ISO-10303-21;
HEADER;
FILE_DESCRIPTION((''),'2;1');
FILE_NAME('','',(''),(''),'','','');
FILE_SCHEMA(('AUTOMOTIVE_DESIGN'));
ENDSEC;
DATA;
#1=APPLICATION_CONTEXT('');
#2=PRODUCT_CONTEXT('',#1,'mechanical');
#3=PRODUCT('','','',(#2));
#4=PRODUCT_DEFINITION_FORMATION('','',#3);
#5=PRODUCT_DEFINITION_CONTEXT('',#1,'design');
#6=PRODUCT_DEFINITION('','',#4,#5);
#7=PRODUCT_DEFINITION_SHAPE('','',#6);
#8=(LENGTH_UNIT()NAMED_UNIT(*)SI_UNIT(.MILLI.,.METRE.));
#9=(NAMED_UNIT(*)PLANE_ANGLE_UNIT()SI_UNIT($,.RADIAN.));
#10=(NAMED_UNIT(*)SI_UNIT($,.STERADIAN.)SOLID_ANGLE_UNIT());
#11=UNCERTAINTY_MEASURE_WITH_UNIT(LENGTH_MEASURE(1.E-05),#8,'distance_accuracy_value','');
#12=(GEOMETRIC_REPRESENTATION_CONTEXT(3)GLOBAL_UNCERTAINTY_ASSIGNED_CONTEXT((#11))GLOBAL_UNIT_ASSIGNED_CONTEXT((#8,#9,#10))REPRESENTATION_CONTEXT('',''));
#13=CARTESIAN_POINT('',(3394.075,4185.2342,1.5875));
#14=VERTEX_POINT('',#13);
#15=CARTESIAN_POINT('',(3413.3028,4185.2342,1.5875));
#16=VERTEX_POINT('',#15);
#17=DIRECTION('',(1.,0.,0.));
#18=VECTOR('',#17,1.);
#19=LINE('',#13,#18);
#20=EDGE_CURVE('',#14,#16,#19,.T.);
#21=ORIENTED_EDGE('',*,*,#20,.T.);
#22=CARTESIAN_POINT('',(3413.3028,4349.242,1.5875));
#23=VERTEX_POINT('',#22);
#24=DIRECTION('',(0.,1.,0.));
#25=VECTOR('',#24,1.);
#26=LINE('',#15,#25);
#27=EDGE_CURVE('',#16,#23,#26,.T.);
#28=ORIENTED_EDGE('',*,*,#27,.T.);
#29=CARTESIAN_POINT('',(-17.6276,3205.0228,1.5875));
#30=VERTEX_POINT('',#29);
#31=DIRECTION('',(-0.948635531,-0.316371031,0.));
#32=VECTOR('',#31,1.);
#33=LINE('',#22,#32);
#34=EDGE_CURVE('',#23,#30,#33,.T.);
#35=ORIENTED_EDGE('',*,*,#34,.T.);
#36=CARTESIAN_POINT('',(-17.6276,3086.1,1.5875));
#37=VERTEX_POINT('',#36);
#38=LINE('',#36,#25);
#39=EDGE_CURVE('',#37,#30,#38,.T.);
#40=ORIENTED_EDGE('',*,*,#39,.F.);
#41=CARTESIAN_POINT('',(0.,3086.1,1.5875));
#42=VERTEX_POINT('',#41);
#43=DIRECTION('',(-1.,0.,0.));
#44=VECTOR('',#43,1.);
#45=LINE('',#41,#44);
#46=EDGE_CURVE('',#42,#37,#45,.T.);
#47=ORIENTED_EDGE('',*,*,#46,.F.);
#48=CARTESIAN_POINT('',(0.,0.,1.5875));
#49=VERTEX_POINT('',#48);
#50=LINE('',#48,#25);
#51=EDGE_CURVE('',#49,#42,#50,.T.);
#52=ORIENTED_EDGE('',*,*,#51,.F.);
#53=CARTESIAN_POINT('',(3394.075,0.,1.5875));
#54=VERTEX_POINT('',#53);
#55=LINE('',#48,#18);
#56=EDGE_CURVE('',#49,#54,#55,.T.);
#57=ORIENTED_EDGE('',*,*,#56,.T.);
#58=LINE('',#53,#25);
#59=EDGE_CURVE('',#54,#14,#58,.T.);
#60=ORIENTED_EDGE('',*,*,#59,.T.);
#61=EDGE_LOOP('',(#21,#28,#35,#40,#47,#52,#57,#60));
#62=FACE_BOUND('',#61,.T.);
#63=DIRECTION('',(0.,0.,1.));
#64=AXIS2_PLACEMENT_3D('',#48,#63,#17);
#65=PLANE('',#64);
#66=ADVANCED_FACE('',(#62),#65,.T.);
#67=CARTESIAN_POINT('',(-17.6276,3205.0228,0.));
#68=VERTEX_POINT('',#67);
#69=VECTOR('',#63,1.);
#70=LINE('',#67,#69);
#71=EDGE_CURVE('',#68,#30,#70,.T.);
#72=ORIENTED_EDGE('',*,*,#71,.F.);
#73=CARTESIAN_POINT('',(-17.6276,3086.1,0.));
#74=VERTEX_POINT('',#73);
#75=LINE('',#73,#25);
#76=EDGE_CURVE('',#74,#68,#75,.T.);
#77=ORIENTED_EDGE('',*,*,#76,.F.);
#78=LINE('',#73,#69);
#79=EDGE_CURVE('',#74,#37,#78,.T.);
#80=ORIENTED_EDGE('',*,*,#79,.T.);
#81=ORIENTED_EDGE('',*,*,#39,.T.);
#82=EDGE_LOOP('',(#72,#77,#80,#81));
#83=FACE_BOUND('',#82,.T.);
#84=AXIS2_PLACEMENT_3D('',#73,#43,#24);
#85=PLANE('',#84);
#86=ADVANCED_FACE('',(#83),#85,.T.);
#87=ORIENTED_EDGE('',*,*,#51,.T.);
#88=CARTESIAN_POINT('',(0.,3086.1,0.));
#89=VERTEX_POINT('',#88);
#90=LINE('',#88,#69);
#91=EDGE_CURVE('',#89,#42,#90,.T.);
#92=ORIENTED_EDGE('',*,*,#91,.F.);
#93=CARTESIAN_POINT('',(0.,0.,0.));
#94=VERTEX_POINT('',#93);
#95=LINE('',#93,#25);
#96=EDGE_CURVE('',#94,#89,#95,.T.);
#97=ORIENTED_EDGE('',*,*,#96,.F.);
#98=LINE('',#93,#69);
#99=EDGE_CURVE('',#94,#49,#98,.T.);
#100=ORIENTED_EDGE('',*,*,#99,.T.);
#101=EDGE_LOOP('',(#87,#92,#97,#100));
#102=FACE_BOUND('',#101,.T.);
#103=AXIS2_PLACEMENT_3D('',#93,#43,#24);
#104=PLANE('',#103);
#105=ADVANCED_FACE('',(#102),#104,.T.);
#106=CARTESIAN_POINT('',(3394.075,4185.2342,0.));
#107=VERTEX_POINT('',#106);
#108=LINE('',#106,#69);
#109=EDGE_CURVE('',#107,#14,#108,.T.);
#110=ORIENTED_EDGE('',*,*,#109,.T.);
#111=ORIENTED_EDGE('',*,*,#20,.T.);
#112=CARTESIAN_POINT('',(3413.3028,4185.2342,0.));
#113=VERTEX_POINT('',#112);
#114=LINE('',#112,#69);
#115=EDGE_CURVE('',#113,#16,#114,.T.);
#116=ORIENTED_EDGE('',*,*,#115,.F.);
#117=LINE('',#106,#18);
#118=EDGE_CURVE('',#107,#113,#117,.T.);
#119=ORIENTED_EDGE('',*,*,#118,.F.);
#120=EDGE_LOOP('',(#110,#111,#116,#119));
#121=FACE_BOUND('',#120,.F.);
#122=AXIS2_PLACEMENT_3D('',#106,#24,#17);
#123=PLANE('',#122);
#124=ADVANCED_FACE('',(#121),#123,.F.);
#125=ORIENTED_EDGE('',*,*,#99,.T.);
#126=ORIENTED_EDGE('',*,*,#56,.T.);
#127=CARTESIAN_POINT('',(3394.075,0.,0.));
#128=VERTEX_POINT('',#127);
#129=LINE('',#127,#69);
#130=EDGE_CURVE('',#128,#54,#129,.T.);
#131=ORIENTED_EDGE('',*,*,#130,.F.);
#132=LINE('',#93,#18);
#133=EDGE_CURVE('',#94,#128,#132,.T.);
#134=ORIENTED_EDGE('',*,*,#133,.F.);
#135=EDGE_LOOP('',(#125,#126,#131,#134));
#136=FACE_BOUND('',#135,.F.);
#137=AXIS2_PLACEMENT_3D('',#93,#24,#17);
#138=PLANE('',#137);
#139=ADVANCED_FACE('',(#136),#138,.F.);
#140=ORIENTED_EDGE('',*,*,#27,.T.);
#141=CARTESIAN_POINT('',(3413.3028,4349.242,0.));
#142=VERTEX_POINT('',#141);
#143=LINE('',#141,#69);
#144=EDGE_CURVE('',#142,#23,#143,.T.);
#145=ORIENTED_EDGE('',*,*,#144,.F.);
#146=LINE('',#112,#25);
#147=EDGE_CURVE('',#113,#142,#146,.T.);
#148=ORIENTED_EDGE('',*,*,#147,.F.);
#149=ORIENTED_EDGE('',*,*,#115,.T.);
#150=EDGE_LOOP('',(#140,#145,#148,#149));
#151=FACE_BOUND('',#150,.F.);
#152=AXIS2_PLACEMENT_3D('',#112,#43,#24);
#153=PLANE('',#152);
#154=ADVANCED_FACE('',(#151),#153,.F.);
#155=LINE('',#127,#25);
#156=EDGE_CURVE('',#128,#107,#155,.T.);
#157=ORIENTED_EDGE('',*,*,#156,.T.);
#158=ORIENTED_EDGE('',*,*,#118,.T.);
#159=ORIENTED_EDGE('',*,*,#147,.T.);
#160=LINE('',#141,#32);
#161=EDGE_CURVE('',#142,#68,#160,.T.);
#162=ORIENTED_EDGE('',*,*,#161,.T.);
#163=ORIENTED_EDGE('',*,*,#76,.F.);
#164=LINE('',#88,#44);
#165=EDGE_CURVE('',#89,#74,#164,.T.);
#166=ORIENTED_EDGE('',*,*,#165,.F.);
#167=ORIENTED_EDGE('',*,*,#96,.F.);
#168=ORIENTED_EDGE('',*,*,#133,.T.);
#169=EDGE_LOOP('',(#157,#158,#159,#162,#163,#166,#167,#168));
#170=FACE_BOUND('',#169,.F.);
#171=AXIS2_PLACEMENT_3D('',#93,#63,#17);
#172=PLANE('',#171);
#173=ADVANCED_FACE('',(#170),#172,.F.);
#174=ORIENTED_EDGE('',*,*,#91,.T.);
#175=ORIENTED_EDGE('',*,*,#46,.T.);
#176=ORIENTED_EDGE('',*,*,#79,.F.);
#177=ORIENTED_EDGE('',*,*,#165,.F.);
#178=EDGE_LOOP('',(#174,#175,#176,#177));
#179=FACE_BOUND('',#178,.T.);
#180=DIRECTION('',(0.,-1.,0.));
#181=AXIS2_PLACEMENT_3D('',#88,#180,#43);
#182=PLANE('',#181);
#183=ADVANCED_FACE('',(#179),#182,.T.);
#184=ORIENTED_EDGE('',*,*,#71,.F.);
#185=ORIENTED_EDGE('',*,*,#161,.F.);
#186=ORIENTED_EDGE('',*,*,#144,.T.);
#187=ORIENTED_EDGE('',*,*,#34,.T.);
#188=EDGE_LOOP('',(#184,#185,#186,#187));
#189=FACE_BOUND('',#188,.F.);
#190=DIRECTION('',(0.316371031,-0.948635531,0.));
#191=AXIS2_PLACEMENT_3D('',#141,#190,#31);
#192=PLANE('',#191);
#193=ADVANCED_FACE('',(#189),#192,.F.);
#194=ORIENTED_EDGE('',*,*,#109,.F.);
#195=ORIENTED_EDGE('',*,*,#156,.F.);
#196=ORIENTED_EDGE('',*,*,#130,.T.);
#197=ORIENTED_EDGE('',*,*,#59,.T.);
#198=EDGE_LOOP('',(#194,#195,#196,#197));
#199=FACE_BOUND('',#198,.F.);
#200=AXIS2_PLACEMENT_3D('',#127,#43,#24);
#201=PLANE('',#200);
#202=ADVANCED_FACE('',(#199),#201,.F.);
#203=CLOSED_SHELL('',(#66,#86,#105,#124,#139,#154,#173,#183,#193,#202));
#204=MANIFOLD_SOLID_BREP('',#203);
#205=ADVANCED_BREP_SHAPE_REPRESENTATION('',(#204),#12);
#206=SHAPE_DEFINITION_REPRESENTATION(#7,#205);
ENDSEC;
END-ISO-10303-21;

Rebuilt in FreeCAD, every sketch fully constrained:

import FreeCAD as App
import Part
import Sketcher
Q = App.Units.Quantity

doc = App.newDocument("Part")
params = doc.addObject("Spreadsheet::Sheet", "Params")
for row, (alias, value) in enumerate([
    ("sketch1_height", "121.5 in"),
    ("sketch1_width", "133.625 in"),
    ("sketch1_width2", "0.757 in"),
    ("sketch1_width3", "0.694 in"),
    ("sketch1_height2", "164.773 in"),
    ("pad1_length", "0.0625 in"),
], start=1):
    params.set(f"A{row}", alias)
    params.set(f"B{row}", "=" + value)
    params.setAlias(f"B{row}", alias)

body = doc.addObject("PartDesign::Body", "Body")

# Sketch on XY plane
sketch1 = body.newObject("Sketcher::SketchObject", "Sketch")
sketch1.AttachmentSupport = (doc.getObject("XY_Plane"), [""])
sketch1.MapMode = "FlatFace"
sketch1.addGeometry(Part.LineSegment(App.Vector(0, 3086, 0), App.Vector(0, 0, 0)), False)
sketch1.addGeometry(Part.LineSegment(App.Vector(0, 0, 0), App.Vector(3394, 0, 0)), False)
sketch1.addGeometry(Part.LineSegment(App.Vector(3394, 0, 0), App.Vector(3394, 4185, 0)), False)
sketch1.addGeometry(Part.LineSegment(App.Vector(3394, 4185, 0), App.Vector(3413, 4185, 0)), False)
sketch1.addGeometry(Part.LineSegment(App.Vector(3413, 4185, 0), App.Vector(3413, 4349, 0)), False)
sketch1.addGeometry(Part.LineSegment(App.Vector(3413, 4349, 0), App.Vector(-18, 3205, 0)), False)
sketch1.addGeometry(Part.LineSegment(App.Vector(-18, 3205, 0), App.Vector(-18, 3086, 0)), False)
sketch1.addGeometry(Part.LineSegment(App.Vector(-18, 3086, 0), App.Vector(0, 3086, 0)), False)
sketch1.addConstraint(Sketcher.Constraint("Coincident", 0, 2, 1, 1))
sketch1.addConstraint(Sketcher.Constraint("Coincident", 1, 2, 2, 1))
sketch1.addConstraint(Sketcher.Constraint("Coincident", 2, 2, 3, 1))
sketch1.addConstraint(Sketcher.Constraint("Coincident", 3, 2, 4, 1))
sketch1.addConstraint(Sketcher.Constraint("Coincident", 4, 2, 5, 1))
sketch1.addConstraint(Sketcher.Constraint("Coincident", 5, 2, 6, 1))
sketch1.addConstraint(Sketcher.Constraint("Coincident", 6, 2, 7, 1))
sketch1.addConstraint(Sketcher.Constraint("Coincident", 7, 2, 0, 1))
sketch1.addConstraint(Sketcher.Constraint("Vertical", 0))
sketch1.addConstraint(Sketcher.Constraint("Horizontal", 1))
sketch1.addConstraint(Sketcher.Constraint("Vertical", 2))
sketch1.addConstraint(Sketcher.Constraint("Horizontal", 3))
sketch1.addConstraint(Sketcher.Constraint("Vertical", 4))
sketch1.addConstraint(Sketcher.Constraint("Vertical", 6))
sketch1.addConstraint(Sketcher.Constraint("Horizontal", 7))
sketch1.addConstraint(Sketcher.Constraint("Coincident", 0, 2, -1, 1))
sketch1.addConstraint(Sketcher.Constraint("DistanceY", 0, 2, 0, 1, Q("121.5 in")))
sketch1.addConstraint(Sketcher.Constraint("DistanceX", 1, 1, 1, 2, Q("133.625 in")))
sketch1.addConstraint(Sketcher.Constraint("DistanceX", 3, 1, 3, 2, Q("0.757 in")))
sketch1.addConstraint(Sketcher.Constraint("DistanceX", 7, 1, 7, 2, Q("0.694 in")))
sketch1.addConstraint(Sketcher.Constraint("DistanceY", 2, 1, 2, 2, Q("164.773 in")))
sketch1.addConstraint(Sketcher.Constraint("DistanceY", 4, 1, 4, 2, Q("6.457 in")))
sketch1.addConstraint(Sketcher.Constraint("DistanceY", 6, 2, 6, 1, Q("4.682 in")))
sketch1.setExpression("Constraints[16]", "Params.sketch1_height")
sketch1.setExpression("Constraints[17]", "Params.sketch1_width")
sketch1.setExpression("Constraints[18]", "Params.sketch1_width2")
sketch1.setExpression("Constraints[19]", "Params.sketch1_width3")
sketch1.setExpression("Constraints[20]", "Params.sketch1_height2")
pad1 = body.newObject("PartDesign::Pad", "Pad")
pad1.Profile = sketch1
pad1.setExpression("Length", "Params.pad1_length")

doc.recompute()
